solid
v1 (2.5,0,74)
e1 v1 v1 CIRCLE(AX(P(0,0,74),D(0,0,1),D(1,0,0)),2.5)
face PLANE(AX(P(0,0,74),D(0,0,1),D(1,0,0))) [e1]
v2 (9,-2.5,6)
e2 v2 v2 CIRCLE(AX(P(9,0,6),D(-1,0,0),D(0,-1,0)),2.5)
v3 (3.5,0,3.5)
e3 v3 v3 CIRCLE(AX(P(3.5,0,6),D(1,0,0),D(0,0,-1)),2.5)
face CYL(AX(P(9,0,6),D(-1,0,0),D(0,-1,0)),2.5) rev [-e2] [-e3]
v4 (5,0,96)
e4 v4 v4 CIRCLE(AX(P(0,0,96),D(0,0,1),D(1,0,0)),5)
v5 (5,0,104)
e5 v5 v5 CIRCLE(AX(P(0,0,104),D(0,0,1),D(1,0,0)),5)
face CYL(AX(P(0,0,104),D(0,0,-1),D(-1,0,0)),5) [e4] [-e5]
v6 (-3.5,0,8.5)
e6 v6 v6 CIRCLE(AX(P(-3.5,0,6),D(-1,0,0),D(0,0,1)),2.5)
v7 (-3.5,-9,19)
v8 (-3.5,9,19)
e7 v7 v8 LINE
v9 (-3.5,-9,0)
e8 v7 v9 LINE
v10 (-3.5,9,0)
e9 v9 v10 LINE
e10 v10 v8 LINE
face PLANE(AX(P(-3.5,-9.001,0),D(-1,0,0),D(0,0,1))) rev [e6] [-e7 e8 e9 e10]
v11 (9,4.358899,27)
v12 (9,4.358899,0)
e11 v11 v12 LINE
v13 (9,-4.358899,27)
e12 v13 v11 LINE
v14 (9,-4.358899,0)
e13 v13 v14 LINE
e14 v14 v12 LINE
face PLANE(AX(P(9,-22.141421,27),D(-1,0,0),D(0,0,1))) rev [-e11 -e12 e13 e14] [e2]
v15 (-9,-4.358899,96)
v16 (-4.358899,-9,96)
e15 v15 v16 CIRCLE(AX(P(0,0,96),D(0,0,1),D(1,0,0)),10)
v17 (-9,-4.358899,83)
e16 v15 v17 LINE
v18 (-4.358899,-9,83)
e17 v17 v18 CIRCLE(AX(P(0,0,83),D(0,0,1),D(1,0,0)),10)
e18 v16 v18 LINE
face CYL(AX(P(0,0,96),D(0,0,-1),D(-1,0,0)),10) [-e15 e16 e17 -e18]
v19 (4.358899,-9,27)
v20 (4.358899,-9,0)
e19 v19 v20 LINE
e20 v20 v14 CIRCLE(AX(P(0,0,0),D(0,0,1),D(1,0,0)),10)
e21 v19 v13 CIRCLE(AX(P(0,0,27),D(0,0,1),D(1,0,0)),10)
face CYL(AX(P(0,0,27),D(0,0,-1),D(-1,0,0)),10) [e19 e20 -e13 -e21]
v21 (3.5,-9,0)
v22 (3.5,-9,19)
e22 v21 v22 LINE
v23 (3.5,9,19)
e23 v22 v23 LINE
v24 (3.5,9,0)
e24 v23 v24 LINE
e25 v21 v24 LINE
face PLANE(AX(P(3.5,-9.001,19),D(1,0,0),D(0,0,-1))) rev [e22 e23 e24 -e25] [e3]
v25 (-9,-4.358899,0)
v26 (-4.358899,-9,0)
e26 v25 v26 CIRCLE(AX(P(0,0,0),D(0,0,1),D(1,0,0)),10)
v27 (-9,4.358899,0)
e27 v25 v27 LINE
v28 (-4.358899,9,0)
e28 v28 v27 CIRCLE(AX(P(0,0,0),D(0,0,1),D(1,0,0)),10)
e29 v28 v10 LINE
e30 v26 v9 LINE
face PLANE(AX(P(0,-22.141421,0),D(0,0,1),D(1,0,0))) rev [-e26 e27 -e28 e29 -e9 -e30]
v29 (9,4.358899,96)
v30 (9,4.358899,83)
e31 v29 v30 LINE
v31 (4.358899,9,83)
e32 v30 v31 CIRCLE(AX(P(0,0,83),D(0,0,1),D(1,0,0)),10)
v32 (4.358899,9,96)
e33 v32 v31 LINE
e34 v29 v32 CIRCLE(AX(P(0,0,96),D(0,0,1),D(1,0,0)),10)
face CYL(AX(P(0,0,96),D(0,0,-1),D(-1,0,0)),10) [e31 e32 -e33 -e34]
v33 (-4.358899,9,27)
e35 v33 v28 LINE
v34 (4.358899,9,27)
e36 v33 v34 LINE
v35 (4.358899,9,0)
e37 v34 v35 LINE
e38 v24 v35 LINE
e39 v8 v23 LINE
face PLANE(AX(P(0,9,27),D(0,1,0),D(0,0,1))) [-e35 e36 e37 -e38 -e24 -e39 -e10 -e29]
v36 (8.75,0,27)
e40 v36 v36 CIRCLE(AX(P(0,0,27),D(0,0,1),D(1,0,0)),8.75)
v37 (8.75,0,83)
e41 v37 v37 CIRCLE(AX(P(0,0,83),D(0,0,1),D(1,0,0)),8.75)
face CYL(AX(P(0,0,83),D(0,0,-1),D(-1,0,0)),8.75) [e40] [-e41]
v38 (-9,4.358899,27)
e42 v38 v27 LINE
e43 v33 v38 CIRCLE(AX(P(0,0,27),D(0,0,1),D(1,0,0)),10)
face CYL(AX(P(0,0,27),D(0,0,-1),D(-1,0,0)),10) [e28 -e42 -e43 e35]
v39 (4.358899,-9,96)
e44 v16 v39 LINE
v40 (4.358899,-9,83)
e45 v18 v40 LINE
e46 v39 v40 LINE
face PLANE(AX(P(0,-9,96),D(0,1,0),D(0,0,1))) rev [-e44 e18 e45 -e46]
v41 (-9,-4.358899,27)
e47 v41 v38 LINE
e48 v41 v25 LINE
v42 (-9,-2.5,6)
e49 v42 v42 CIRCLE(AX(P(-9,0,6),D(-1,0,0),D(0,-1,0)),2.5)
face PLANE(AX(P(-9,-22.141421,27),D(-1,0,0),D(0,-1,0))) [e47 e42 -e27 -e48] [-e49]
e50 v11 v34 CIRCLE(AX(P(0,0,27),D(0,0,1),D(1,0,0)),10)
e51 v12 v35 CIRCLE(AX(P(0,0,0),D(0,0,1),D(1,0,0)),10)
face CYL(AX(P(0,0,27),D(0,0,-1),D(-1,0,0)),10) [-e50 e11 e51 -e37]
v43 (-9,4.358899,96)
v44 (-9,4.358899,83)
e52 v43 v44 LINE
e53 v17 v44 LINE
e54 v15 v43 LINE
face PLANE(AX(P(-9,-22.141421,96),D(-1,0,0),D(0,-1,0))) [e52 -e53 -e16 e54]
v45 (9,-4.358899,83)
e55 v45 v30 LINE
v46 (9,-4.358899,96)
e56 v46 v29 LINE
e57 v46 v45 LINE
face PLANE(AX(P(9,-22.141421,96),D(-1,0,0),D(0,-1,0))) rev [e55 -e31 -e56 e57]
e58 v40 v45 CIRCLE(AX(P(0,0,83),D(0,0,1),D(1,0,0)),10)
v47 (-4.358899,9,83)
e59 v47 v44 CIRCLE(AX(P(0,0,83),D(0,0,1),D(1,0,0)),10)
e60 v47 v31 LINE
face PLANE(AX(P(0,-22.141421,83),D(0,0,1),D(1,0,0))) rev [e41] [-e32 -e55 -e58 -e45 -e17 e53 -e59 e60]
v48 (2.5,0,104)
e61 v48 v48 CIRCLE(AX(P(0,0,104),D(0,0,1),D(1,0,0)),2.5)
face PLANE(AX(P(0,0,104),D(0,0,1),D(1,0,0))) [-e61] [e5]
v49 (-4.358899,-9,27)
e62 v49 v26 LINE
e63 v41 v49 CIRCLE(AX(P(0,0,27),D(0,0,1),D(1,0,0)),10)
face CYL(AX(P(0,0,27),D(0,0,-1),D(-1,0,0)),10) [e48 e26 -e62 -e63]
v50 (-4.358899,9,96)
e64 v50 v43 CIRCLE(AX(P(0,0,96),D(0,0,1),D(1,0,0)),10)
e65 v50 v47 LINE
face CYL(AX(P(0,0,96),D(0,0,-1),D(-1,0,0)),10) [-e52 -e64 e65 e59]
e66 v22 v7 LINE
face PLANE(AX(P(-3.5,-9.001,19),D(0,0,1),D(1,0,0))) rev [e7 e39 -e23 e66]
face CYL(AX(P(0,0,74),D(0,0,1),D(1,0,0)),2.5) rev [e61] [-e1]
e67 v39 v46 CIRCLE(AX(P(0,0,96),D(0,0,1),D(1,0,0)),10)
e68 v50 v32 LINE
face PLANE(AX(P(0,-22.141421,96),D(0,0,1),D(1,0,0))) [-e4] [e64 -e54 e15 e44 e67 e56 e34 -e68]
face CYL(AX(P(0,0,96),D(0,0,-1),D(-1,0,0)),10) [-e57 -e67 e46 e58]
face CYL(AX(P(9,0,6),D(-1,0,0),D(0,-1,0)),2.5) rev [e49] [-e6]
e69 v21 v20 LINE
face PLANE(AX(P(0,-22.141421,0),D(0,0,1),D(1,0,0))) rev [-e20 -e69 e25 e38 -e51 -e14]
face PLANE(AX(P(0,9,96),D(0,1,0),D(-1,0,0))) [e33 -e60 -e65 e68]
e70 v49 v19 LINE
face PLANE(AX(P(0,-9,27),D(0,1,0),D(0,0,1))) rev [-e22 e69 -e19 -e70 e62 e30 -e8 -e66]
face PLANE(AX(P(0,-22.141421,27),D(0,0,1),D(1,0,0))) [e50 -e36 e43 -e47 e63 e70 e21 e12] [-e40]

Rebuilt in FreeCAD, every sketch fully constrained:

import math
import FreeCAD as App
import Part
import Sketcher
from FreeCAD import Vector
Q = App.Units.Quantity


def add_polygon(sketch, points):
    """Adds a closed chain of lines whose ends are joined by coincident constraints."""
    first, n = sketch.GeometryCount, len(points)
    for a, b in zip(points, points[1:] + points[:1]):
        sketch.addGeometry(Part.LineSegment(App.Vector(*a, 0), App.Vector(*b, 0)), False)
    for i in range(n):
        sketch.addConstraint(Sketcher.Constraint("Coincident", first + i, 2, first + (i + 1) % n, 1))

doc = App.newDocument("Part")
body = doc.addObject("PartDesign::Body", "Body")

# Sketch on XY plane
sketch1 = body.newObject("Sketcher::SketchObject", "Sketch")
sketch1.AttachmentSupport = (doc.getObject("XY_Plane"), [""])
sketch1.MapMode = "FlatFace"
sketch1.addGeometry(Part.ArcOfCircle(Part.Circle(Vector(0, 0, 0), Vector(0, 0, 1), 10), math.radians(-154), math.radians(-116)), False)
sketch1.addGeometry(Part.LineSegment(Vector(-4, -9, 0), Vector(4, -9, 0)), False)
sketch1.addGeometry(Part.ArcOfCircle(Part.Circle(Vector(0, 0, 0), Vector(0, 0, 1), 10), math.radians(-64), math.radians(-26)), False)
sketch1.addGeometry(Part.LineSegment(Vector(9, -4, 0), Vector(9, 4, 0)), False)
sketch1.addGeometry(Part.ArcOfCircle(Part.Circle(Vector(0, 0, 0), Vector(0, 0, 1), 10), math.radians(26), math.radians(64)), False)
sketch1.addGeometry(Part.LineSegment(Vector(4, 9, 0), Vector(-4, 9, 0)), False)
sketch1.addGeometry(Part.ArcOfCircle(Part.Circle(Vector(0, 0, 0), Vector(0, 0, 1), 10), math.radians(116), math.radians(154)), False)
sketch1.addGeometry(Part.LineSegment(Vector(-9, 4, 0), Vector(-9, -4, 0)), False)
sketch1.addConstraint(Sketcher.Constraint("Coincident", 0, 2, 1, 1))
sketch1.addConstraint(Sketcher.Constraint("Coincident", 1, 2, 2, 1))
sketch1.addConstraint(Sketcher.Constraint("Coincident", 2, 2, 3, 1))
sketch1.addConstraint(Sketcher.Constraint("Coincident", 3, 2, 4, 1))
sketch1.addConstraint(Sketcher.Constraint("Coincident", 4, 2, 5, 1))
sketch1.addConstraint(Sketcher.Constraint("Coincident", 5, 2, 6, 1))
sketch1.addConstraint(Sketcher.Constraint("Coincident", 6, 2, 7, 1))
sketch1.addConstraint(Sketcher.Constraint("Coincident", 7, 2, 0, 1))
sketch1.addConstraint(Sketcher.Constraint("Horizontal", 1))
sketch1.addConstraint(Sketcher.Constraint("Vertical", 3))
sketch1.addConstraint(Sketcher.Constraint("Horizontal", 5))
sketch1.addConstraint(Sketcher.Constraint("Vertical", 7))
sketch1.addConstraint(Sketcher.Constraint("Coincident", 0, 3, -1, 1))
sketch1.addConstraint(Sketcher.Constraint("Coincident", 2, 3, -1, 1))
sketch1.addConstraint(Sketcher.Constraint("Coincident", 4, 3, -1, 1))
sketch1.addConstraint(Sketcher.Constraint("Coincident", 6, 3, -1, 1))
sketch1.addConstraint(Sketcher.Constraint("Equal", 0, 2))
sketch1.addConstraint(Sketcher.Constraint("Equal", 2, 4))
sketch1.addConstraint(Sketcher.Constraint("Equal", 4, 6))
sketch1.addConstraint(Sketcher.Constraint("Horizontal", 3, 2, 6, 2))
sketch1.addConstraint(Sketcher.Constraint("Vertical", 1, 2, 4, 2))
sketch1.addConstraint(Sketcher.Constraint("Equal", 5, 3))
sketch1.addConstraint(Sketcher.Constraint("Radius", 0, Q("10 mm")))
sketch1.addConstraint(Sketcher.Constraint("DistanceY", 0, 2, -1, 1, Q("9 mm")))
pad1 = body.newObject("PartDesign::Pad", "Pad")
pad1.Profile = sketch1
pad1.Length = 27

# Sketch on XY plane
sketch2 = body.newObject("Sketcher::SketchObject", "Sketch001")
sketch2.AttachmentSupport = (doc.getObject("XY_Plane"), [""])
sketch2.MapMode = "FlatFace"
sketch2.AttachmentOffset = App.Placement(Vector(0, 0, 27), App.Rotation())
sketch2.addGeometry(Part.Circle(Vector(0, 0, 0), Vector(0, 0, 1), 9), False)
sketch2.addConstraint(Sketcher.Constraint("Coincident", 0, 3, -1, 1))
sketch2.addConstraint(Sketcher.Constraint("Diameter", 0, Q("17.5 mm")))
pad2 = body.newObject("PartDesign::Pad", "Pad001")
pad2.Profile = sketch2
pad2.Length = 56

# Sketch on XY plane
sketch3 = body.newObject("Sketcher::SketchObject", "Sketch002")
sketch3.AttachmentSupport = (doc.getObject("XY_Plane"), [""])
sketch3.MapMode = "FlatFace"
sketch3.AttachmentOffset = App.Placement(Vector(0, 0, 83), App.Rotation())
sketch3.addGeometry(Part.ArcOfCircle(Part.Circle(Vector(0, 0, 0), Vector(0, 0, 1), 10), math.radians(-154), math.radians(-116)), False)
sketch3.addGeometry(Part.LineSegment(Vector(-4, -9, 0), Vector(4, -9, 0)), False)
sketch3.addGeometry(Part.ArcOfCircle(Part.Circle(Vector(0, 0, 0), Vector(0, 0, 1), 10), math.radians(-64), math.radians(-26)), False)
sketch3.addGeometry(Part.LineSegment(Vector(9, -4, 0), Vector(9, 4, 0)), False)
sketch3.addGeometry(Part.ArcOfCircle(Part.Circle(Vector(0, 0, 0), Vector(0, 0, 1), 10), math.radians(26), math.radians(64)), False)
sketch3.addGeometry(Part.LineSegment(Vector(4, 9, 0), Vector(-4, 9, 0)), False)
sketch3.addGeometry(Part.ArcOfCircle(Part.Circle(Vector(0, 0, 0), Vector(0, 0, 1), 10), math.radians(116), math.radians(154)), False)
sketch3.addGeometry(Part.LineSegment(Vector(-9, 4, 0), Vector(-9, -4, 0)), False)
sketch3.addConstraint(Sketcher.Constraint("Coincident", 0, 2, 1, 1))
sketch3.addConstraint(Sketcher.Constraint("Coincident", 1, 2, 2, 1))
sketch3.addConstraint(Sketcher.Constraint("Coincident", 2, 2, 3, 1))
sketch3.addConstraint(Sketcher.Constraint("Coincident", 3, 2, 4, 1))
sketch3.addConstraint(Sketcher.Constraint("Coincident", 4, 2, 5, 1))
sketch3.addConstraint(Sketcher.Constraint("Coincident", 5, 2, 6, 1))
sketch3.addConstraint(Sketcher.Constraint("Coincident", 6, 2, 7, 1))
sketch3.addConstraint(Sketcher.Constraint("Coincident", 7, 2, 0, 1))
sketch3.addConstraint(Sketcher.Constraint("Horizontal", 1))
sketch3.addConstraint(Sketcher.Constraint("Vertical", 3))
sketch3.addConstraint(Sketcher.Constraint("Horizontal", 5))
sketch3.addConstraint(Sketcher.Constraint("Vertical", 7))
sketch3.addConstraint(Sketcher.Constraint("Coincident", 0, 3, -1, 1))
sketch3.addConstraint(Sketcher.Constraint("Coincident", 2, 3, -1, 1))
sketch3.addConstraint(Sketcher.Constraint("Coincident", 4, 3, -1, 1))
sketch3.addConstraint(Sketcher.Constraint("Coincident", 6, 3, -1, 1))
sketch3.addConstraint(Sketcher.Constraint("Equal", 0, 2))
sketch3.addConstraint(Sketcher.Constraint("Equal", 2, 4))
sketch3.addConstraint(Sketcher.Constraint("Equal", 4, 6))
sketch3.addConstraint(Sketcher.Constraint("Horizontal", 3, 2, 6, 2))
sketch3.addConstraint(Sketcher.Constraint("Vertical", 1, 2, 4, 2))
sketch3.addConstraint(Sketcher.Constraint("Equal", 5, 3))
sketch3.addConstraint(Sketcher.Constraint("Radius", 0, Q("10 mm")))
sketch3.addConstraint(Sketcher.Constraint("DistanceY", 0, 2, -1, 1, Q("9 mm")))
pad3 = body.newObject("PartDesign::Pad", "Pad002")
pad3.Profile = sketch3
pad3.Length = 13

# Sketch on XY plane
sketch4 = body.newObject("Sketcher::SketchObject", "Sketch003")
sketch4.AttachmentSupport = (doc.getObject("XY_Plane"), [""])
sketch4.MapMode = "FlatFace"
sketch4.AttachmentOffset = App.Placement(Vector(0, 0, 96), App.Rotation())
sketch4.addGeometry(Part.Circle(Vector(0, 0, 0), Vector(0, 0, 1), 5), False)
sketch4.addConstraint(Sketcher.Constraint("Coincident", 0, 3, -1, 1))
sketch4.addConstraint(Sketcher.Constraint("Diameter", 0, Q("10 mm")))
pad4 = body.newObject("PartDesign::Pad", "Pad003")
pad4.Profile = sketch4
pad4.Length = 8

# Sketch on XY plane
sketch5 = body.newObject("Sketcher::SketchObject", "Sketch004")
sketch5.AttachmentSupport = (doc.getObject("XY_Plane"), [""])
sketch5.MapMode = "FlatFace"
sketch5.AttachmentOffset = App.Placement(Vector(0, 0, 104), App.Rotation())
sketch5.addGeometry(Part.Circle(Vector(0, 0, 0), Vector(0, 0, 1), 2.5), False)
sketch5.addConstraint(Sketcher.Constraint("Coincident", 0, 3, -1, 1))
sketch5.addConstraint(Sketcher.Constraint("Diameter", 0, Q("5 mm")))
pocket1 = body.newObject("PartDesign::Pocket", "Pocket")
pocket1.Profile = sketch5
pocket1.Length = 30

# Sketch on XZ plane
sketch6 = body.newObject("Sketcher::SketchObject", "Sketch005")
sketch6.AttachmentSupport = (doc.getObject("XZ_Plane"), [""])
sketch6.MapMode = "FlatFace"
sketch6.AttachmentOffset = App.Placement(Vector(0, 0, -9), App.Rotation())
add_polygon(sketch6, [(-4, 0), (-4, 19), (4, 19), (4, 0)])  # lines 0-3
sketch6.addConstraint(Sketcher.Constraint("Vertical", 0))
sketch6.addConstraint(Sketcher.Constraint("Horizontal", 1))
sketch6.addConstraint(Sketcher.Constraint("Vertical", 2))
sketch6.addConstraint(Sketcher.Constraint("Horizontal", 3))
sketch6.addConstraint(Sketcher.Constraint("Symmetric", 2, 2, 3, 2, -1, 1))
sketch6.addConstraint(Sketcher.Constraint("DistanceX", 1, 1, 1, 2, Q("7 mm")))
sketch6.addConstraint(Sketcher.Constraint("DistanceY", 0, 1, 0, 2, Q("19 mm")))
pocket2 = body.newObject("PartDesign::Pocket", "Pocket001")
pocket2.Profile = sketch6
pocket2.Type = "UpToFirst"
pocket2.Reversed = True

# Sketch on YZ plane
sketch7 = body.newObject("Sketcher::SketchObject", "Sketch006")
sketch7.AttachmentSupport = (doc.getObject("YZ_Plane"), [""])
sketch7.MapMode = "FlatFace"
sketch7.AttachmentOffset = App.Placement(Vector(0, 0, -9), App.Rotation())
sketch7.addGeometry(Part.Circle(Vector(0, 6, 0), Vector(0, 0, 1), 2.5), False)
sketch7.addConstraint(Sketcher.Constraint("PointOnObject", 0, 3, -2))
sketch7.addConstraint(Sketcher.Constraint("Diameter", 0, Q("5 mm")))
sketch7.addConstraint(Sketcher.Constraint("DistanceY", -1, 1, 0, 3, Q("6 mm")))
pocket3 = body.newObject("PartDesign::Pocket", "Pocket002")
pocket3.Profile = sketch7
pocket3.Type = "ThroughAll"
pocket3.Reversed = True

doc.recompute()
